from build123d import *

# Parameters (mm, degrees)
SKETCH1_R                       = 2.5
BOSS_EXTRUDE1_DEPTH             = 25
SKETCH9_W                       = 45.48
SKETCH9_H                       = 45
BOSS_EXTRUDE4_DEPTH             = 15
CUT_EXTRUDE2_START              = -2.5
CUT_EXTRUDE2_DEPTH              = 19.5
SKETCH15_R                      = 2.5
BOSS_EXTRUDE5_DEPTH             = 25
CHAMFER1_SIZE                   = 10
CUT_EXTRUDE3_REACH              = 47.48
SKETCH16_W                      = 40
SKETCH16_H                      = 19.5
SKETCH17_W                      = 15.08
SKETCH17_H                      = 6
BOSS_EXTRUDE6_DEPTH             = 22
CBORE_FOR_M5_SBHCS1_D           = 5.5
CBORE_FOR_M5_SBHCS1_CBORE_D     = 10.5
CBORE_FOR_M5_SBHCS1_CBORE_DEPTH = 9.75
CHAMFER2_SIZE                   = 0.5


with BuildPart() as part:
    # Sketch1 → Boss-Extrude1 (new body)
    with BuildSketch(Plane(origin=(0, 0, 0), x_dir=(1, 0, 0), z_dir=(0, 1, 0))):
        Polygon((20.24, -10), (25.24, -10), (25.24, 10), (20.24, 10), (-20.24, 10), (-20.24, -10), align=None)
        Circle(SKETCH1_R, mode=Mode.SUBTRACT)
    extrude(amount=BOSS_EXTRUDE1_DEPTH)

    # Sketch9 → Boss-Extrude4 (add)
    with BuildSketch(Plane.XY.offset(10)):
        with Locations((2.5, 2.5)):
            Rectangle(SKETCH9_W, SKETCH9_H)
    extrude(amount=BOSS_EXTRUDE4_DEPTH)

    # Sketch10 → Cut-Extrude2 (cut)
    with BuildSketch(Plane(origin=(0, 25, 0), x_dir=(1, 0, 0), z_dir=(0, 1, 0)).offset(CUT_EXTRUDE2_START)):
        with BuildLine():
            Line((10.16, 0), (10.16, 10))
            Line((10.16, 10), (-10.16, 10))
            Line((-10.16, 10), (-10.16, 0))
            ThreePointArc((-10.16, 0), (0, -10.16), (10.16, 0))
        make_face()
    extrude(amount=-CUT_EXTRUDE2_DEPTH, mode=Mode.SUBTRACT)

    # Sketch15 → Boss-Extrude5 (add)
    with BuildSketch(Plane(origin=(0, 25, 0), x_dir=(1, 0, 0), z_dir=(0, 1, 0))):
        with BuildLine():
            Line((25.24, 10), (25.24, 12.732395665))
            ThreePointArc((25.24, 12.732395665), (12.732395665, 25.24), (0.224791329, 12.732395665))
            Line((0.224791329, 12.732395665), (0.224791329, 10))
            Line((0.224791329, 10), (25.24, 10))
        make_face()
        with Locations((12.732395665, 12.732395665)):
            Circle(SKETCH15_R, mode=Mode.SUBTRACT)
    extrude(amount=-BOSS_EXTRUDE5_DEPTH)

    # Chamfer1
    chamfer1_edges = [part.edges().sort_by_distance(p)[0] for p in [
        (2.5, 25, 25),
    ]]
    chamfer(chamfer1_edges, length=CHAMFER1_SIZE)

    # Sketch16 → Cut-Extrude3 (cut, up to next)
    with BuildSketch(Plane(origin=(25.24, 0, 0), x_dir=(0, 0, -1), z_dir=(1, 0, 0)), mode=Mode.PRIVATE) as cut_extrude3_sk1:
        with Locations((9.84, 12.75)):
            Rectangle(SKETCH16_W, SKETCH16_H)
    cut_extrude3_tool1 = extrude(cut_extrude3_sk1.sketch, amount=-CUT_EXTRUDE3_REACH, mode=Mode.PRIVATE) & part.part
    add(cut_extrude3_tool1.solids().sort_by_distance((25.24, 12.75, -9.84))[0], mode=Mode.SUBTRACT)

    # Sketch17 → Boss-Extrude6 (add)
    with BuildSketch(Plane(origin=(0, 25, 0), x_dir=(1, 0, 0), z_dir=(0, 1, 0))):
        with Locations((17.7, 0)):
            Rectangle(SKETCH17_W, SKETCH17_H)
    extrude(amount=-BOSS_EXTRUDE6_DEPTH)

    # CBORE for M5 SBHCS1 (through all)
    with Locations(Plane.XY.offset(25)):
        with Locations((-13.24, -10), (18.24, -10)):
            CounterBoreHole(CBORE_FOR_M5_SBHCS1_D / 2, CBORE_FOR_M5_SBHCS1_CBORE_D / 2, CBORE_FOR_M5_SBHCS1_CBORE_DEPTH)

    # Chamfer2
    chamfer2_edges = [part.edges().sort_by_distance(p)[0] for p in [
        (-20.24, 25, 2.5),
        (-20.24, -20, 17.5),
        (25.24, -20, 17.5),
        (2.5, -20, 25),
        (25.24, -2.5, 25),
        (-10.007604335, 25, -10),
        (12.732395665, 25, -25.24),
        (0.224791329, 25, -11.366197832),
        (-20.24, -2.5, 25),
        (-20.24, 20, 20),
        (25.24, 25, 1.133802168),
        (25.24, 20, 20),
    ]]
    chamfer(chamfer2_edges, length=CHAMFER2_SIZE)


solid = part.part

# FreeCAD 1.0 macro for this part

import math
import FreeCAD as App
import Part
import Sketcher
Q = App.Units.Quantity


def edges_at(feature, points):
    """Names of the edges that pass closest to the given points."""
    edges = feature.Shape.Edges
    near = lambda p: min(range(len(edges)), key=lambda i: edges[i].distToShape(Part.Vertex(*p))[0])
    return sorted({f"Edge{near(p) + 1}" for p in points})

doc = App.newDocument("Part")
body = doc.addObject("PartDesign::Body", "Body")

# Sketch on XZ plane
sketch1 = body.newObject("Sketcher::SketchObject", "Sketch")
sketch1.AttachmentSupport = (doc.getObject("XZ_Plane"), [""])
sketch1.MapMode = "FlatFace"
sketch1.addGeometry([
    Part.LineSegment(App.Vector(25.24, 10, 0), App.Vector(25.24, -10, 0)),  # 0
    Part.LineSegment(App.Vector(25.24, -10, 0), App.Vector(-20.24, -10, 0)),  # 1
    Part.LineSegment(App.Vector(-20.24, -10, 0), App.Vector(-20.24, 10, 0)),  # 2
    Part.LineSegment(App.Vector(-20.24, 10, 0), App.Vector(25.24, 10, 0)),  # 3
    Part.Circle(App.Vector(0, 0, 0), App.Vector(0, 0, 1), 2.5),  # 4
], False)
sketch1.addConstraint([
    Sketcher.Constraint("Coincident", 0, 2, 1, 1),
    Sketcher.Constraint("Coincident", 1, 2, 2, 1),
    Sketcher.Constraint("Coincident", 2, 2, 3, 1),
    Sketcher.Constraint("Coincident", 3, 2, 0, 1),
    Sketcher.Constraint("Vertical", 0),
    Sketcher.Constraint("Horizontal", 1),
    Sketcher.Constraint("Vertical", 2),
    Sketcher.Constraint("Horizontal", 3),
    Sketcher.Constraint("Coincident", 4, 3, -1, 1),
    Sketcher.Constraint("Diameter", 4, Q("5 mm")),
    Sketcher.Constraint("DistanceY", 0, 2, 0, 1, Q("20 mm")),
    Sketcher.Constraint("DistanceY", 0, 2, -1, 1, Q("10 mm")),
    Sketcher.Constraint("DistanceX", 1, 2, 1, 1, Q("45.48 mm")),
    Sketcher.Constraint("DistanceX", -1, 1, 0, 2, Q("25.24 mm")),
])
pad1 = body.newObject("PartDesign::Pad", "Pad")
pad1.Profile = sketch1
pad1.Length = 25
pad1.Reversed = True

# Sketch on XY plane
sketch2 = body.newObject("Sketcher::SketchObject", "Sketch001")
sketch2.AttachmentSupport = (doc.getObject("XY_Plane"), [""])
sketch2.MapMode = "FlatFace"
sketch2.AttachmentOffset = App.Placement(App.Vector(0, 0, 10), App.Rotation())
sketch2.addGeometry([
    Part.LineSegment(App.Vector(-20.24, 25, 0), App.Vector(-20.24, -20, 0)),
    Part.LineSegment(App.Vector(-20.24, -20, 0), App.Vector(25.24, -20, 0)),
    Part.LineSegment(App.Vector(25.24, -20, 0), App.Vector(25.24, 25, 0)),
    Part.LineSegment(App.Vector(25.24, 25, 0), App.Vector(-20.24, 25, 0)),
], False)
sketch2.addConstraint([
    Sketcher.Constraint("Coincident", 0, 2, 1, 1),
    Sketcher.Constraint("Coincident", 1, 2, 2, 1),
    Sketcher.Constraint("Coincident", 2, 2, 3, 1),
    Sketcher.Constraint("Coincident", 3, 2, 0, 1),
    Sketcher.Constraint("Vertical", 0),
    Sketcher.Constraint("Horizontal", 1),
    Sketcher.Constraint("Vertical", 2),
    Sketcher.Constraint("Horizontal", 3),
    Sketcher.Constraint("DistanceY", 0, 2, 0, 1, Q("45 mm")),
    Sketcher.Constraint("DistanceY", 0, 2, -1, 1, Q("20 mm")),
    Sketcher.Constraint("DistanceX", 1, 1, 1, 2, Q("45.48 mm")),
    Sketcher.Constraint("DistanceX", 0, 2, -1, 1, Q("20.24 mm")),
])
pad2 = body.newObject("PartDesign::Pad", "Pad001")
pad2.Profile = sketch2
pad2.Length = 15

# Sketch on XZ plane
sketch3 = body.newObject("Sketcher::SketchObject", "Sketch002")
sketch3.AttachmentSupport = (doc.getObject("XZ_Plane"), [""])
sketch3.MapMode = "FlatFace"
sketch3.AttachmentOffset = App.Placement(App.Vector(0, 0, -22.5), App.Rotation())
sketch3.addGeometry([
    Part.LineSegment(App.Vector(10.16, 0, 0), App.Vector(10.16, -10, 0)),
    Part.LineSegment(App.Vector(10.16, -10, 0), App.Vector(-10.16, -10, 0)),
    Part.LineSegment(App.Vector(-10.16, -10, 0), App.Vector(-10.16, 0, 0)),
    Part.ArcOfCircle(Part.Circle(App.Vector(0, 0, 0), App.Vector(0, 0, 1), 10.16), math.radians(0), math.radians(180)),
], False)
sketch3.addConstraint([
    Sketcher.Constraint("Coincident", 0, 2, 1, 1),
    Sketcher.Constraint("Coincident", 1, 2, 2, 1),
    Sketcher.Constraint("Tangent", 2, 2, 3, 2),
    Sketcher.Constraint("Tangent", 3, 1, 0, 1),
    Sketcher.Constraint("Vertical", 0),
    Sketcher.Constraint("Horizontal", 1),
    Sketcher.Constraint("Vertical", 2),
    Sketcher.Constraint("Coincident", 3, 3, -1, 1),
    Sketcher.Constraint("DistanceY", 0, 2, 0, 1, Q("10 mm")),
    Sketcher.Constraint("Radius", 3, Q("10.16 mm")),
])
pocket1 = body.newObject("PartDesign::Pocket", "Pocket")
pocket1.Profile = sketch3
pocket1.Length = 19.5
pocket1.Reversed = True

# Sketch on XZ plane
sketch4 = body.newObject("Sketcher::SketchObject", "Sketch003")
sketch4.AttachmentSupport = (doc.getObject("XZ_Plane"), [""])
sketch4.MapMode = "FlatFace"
sketch4.AttachmentOffset = App.Placement(App.Vector(0, 0, -25), App.Rotation())
sketch4.addGeometry([
    Part.LineSegment(App.Vector(25.24, -10, 0), App.Vector(25.24, -12.732396, 0)),  # 0
    Part.ArcOfCircle(Part.Circle(App.Vector(12.732396, -12.732396, 0), App.Vector(0, 0, 1), 12.507604), math.radians(-180), math.radians(0)),  # 1
    Part.LineSegment(App.Vector(0.224791, -12.732396, 0), App.Vector(0.224791, -10, 0)),  # 2
    Part.LineSegment(App.Vector(0.224791, -10, 0), App.Vector(25.24, -10, 0)),  # 3
    Part.Circle(App.Vector(12.732396, -12.732396, 0), App.Vector(0, 0, 1), 2.5),  # 4
], False)
sketch4.addConstraint([
    Sketcher.Constraint("Tangent", 0, 2, 1, 2),
    Sketcher.Constraint("Tangent", 1, 1, 2, 1),
    Sketcher.Constraint("Coincident", 2, 2, 3, 1),
    Sketcher.Constraint("Coincident", 3, 2, 0, 1),
    Sketcher.Constraint("Vertical", 0),
    Sketcher.Constraint("Vertical", 2),
    Sketcher.Constraint("Horizontal", 3),
    Sketcher.Constraint("Coincident", 4, 3, 1, 3),
    Sketcher.Constraint("Diameter", 4, Q("5 mm")),
    Sketcher.Constraint("DistanceY", 2, 2, -1, 1, Q("10 mm")),
    Sketcher.Constraint("DistanceX", -1, 1, 0, 2, Q("25.24 mm")),
    Sketcher.Constraint("Radius", 1, Q("12.507604 mm")),
    Sketcher.Constraint("DistanceY", 0, 2, 0, 1, Q("2.732396 mm")),
])
pad3 = body.newObject("PartDesign::Pad", "Pad002")
pad3.Profile = sketch4
pad3.Length = 25
doc.recompute()

chamfer = body.newObject("PartDesign::Chamfer", "Chamfer")
chamfer.Base = (pad3, edges_at(pad3, [(2.5, 25, 25)]))
chamfer.Size = 10

# Sketch on YZ plane
sketch5 = body.newObject("Sketcher::SketchObject", "Sketch004")
sketch5.AttachmentSupport = (doc.getObject("YZ_Plane"), [""])
sketch5.MapMode = "FlatFace"
sketch5.AttachmentOffset = App.Placement(App.Vector(0, 0, 25.24), App.Rotation())
sketch5.addGeometry([
    Part.LineSegment(App.Vector(22.5, 10.16, 0), App.Vector(3, 10.16, 0)),
    Part.LineSegment(App.Vector(3, 10.16, 0), App.Vector(3, -29.84, 0)),
    Part.LineSegment(App.Vector(3, -29.84, 0), App.Vector(22.5, -29.84, 0)),
    Part.LineSegment(App.Vector(22.5, -29.84, 0), App.Vector(22.5, 10.16, 0)),
], False)
sketch5.addConstraint([
    Sketcher.Constraint("Coincident", 0, 2, 1, 1),
    Sketcher.Constraint("Coincident", 1, 2, 2, 1),
    Sketcher.Constraint("Coincident", 2, 2, 3, 1),
    Sketcher.Constraint("Coincident", 3, 2, 0, 1),
    Sketcher.Constraint("Horizontal", 0),
    Sketcher.Constraint("Vertical", 1),
    Sketcher.Constraint("Horizontal", 2),
    Sketcher.Constraint("Vertical", 3),
    Sketcher.Constraint("DistanceY", 1, 2, 1, 1, Q("40 mm")),
    Sketcher.Constraint("DistanceX", 0, 2, 0, 1, Q("19.5 mm")),
    Sketcher.Constraint("DistanceX", -1, 1, 0, 2, Q("3 mm")),
    Sketcher.Constraint("DistanceY", -1, 1, 0, 2, Q("10.16 mm")),
])
pocket2 = body.newObject("PartDesign::Pocket", "Pocket001")
pocket2.Profile = sketch5
pocket2.Length = 25.24

# Sketch on XZ plane
sketch6 = body.newObject("Sketcher::SketchObject", "Sketch005")
sketch6.AttachmentSupport = (doc.getObject("XZ_Plane"), [""])
sketch6.MapMode = "FlatFace"
sketch6.AttachmentOffset = App.Placement(App.Vector(0, 0, -25), App.Rotation())
sketch6.addGeometry([
    Part.LineSegment(App.Vector(10.16, -3, 0), App.Vector(10.16, 3, 0)),
    Part.LineSegment(App.Vector(10.16, 3, 0), App.Vector(25.24, 3, 0)),
    Part.LineSegment(App.Vector(25.24, 3, 0), App.Vector(25.24, -3, 0)),
    Part.LineSegment(App.Vector(25.24, -3, 0), App.Vector(10.16, -3, 0)),
], False)
sketch6.addConstraint([
    Sketcher.Constraint("Coincident", 0, 2, 1, 1),
    Sketcher.Constraint("Coincident", 1, 2, 2, 1),
    Sketcher.Constraint("Coincident", 2, 2, 3, 1),
    Sketcher.Constraint("Coincident", 3, 2, 0, 1),
    Sketcher.Constraint("Vertical", 0),
    Sketcher.Constraint("Horizontal", 1),
    Sketcher.Constraint("Vertical", 2),
    Sketcher.Constraint("Horizontal", 3),
    Sketcher.Constraint("DistanceY", 0, 1, 0, 2, Q("6 mm")),
    Sketcher.Constraint("DistanceY", -1, 1, 0, 2, Q("3 mm")),
    Sketcher.Constraint("DistanceX", 1, 1, 1, 2, Q("15.08 mm")),
    Sketcher.Constraint("DistanceX", -1, 1, 0, 2, Q("10.16 mm")),
])
pad4 = body.newObject("PartDesign::Pad", "Pad003")
pad4.Profile = sketch6
pad4.Length = 22

# Sketch on XY plane
sketch7 = body.newObject("Sketcher::SketchObject", "Sketch006")
sketch7.AttachmentSupport = (doc.getObject("XY_Plane"), [""])
sketch7.MapMode = "FlatFace"
sketch7.AttachmentOffset = App.Placement(App.Vector(0, 0, 25), App.Rotation())
sketch7.addGeometry([
    Part.Circle(App.Vector(-13.24, -10, 0), App.Vector(0, 0, 1), 2.75),
    Part.Circle(App.Vector(18.24, -10, 0), App.Vector(0, 0, 1), 2.75),
], False)
sketch7.addConstraint([
    Sketcher.Constraint("Equal", 0, 1),
    Sketcher.Constraint("Horizontal", 0, 3, 1, 3),
    Sketcher.Constraint("Diameter", 0, Q("5.5 mm")),
    Sketcher.Constraint("DistanceY", 0, 3, -1, 1, Q("10 mm")),
    Sketcher.Constraint("DistanceX", 0, 3, -1, 1, Q("13.24 mm")),
    Sketcher.Constraint("DistanceX", -1, 1, 1, 3, Q("18.24 mm")),
])
doc.recompute()
hole = body.newObject("PartDesign::Hole", "Hole")
hole.Profile = sketch7
hole.ThreadType = "None"
hole.Diameter = 5.5
hole.DepthType = "ThroughAll"
hole.HoleCutType = "Counterbore"
hole.HoleCutDiameter = 10.5
hole.HoleCutDepth = 9.75
doc.recompute()

chamfer2 = body.newObject("PartDesign::Chamfer", "Chamfer001")
chamfer2.Base = (hole, edges_at(hole, [
    (-20.24, 25, 2.5),
    (-20.24, -20, 17.5),
    (25.24, -20, 17.5),
    (2.5, -20, 25),
    (25.24, -2.5, 25),
    (-10.008, 25, -10),
    (12.732, 25, -25.24),
    (0.225, 25, -11.366),
    (-20.24, -2.5, 25),
    (-20.24, 20, 20),
    (25.24, 25, 1.134),
    (25.24, 20, 20),
]))
chamfer2.Size = 0.5

doc.recompute()
